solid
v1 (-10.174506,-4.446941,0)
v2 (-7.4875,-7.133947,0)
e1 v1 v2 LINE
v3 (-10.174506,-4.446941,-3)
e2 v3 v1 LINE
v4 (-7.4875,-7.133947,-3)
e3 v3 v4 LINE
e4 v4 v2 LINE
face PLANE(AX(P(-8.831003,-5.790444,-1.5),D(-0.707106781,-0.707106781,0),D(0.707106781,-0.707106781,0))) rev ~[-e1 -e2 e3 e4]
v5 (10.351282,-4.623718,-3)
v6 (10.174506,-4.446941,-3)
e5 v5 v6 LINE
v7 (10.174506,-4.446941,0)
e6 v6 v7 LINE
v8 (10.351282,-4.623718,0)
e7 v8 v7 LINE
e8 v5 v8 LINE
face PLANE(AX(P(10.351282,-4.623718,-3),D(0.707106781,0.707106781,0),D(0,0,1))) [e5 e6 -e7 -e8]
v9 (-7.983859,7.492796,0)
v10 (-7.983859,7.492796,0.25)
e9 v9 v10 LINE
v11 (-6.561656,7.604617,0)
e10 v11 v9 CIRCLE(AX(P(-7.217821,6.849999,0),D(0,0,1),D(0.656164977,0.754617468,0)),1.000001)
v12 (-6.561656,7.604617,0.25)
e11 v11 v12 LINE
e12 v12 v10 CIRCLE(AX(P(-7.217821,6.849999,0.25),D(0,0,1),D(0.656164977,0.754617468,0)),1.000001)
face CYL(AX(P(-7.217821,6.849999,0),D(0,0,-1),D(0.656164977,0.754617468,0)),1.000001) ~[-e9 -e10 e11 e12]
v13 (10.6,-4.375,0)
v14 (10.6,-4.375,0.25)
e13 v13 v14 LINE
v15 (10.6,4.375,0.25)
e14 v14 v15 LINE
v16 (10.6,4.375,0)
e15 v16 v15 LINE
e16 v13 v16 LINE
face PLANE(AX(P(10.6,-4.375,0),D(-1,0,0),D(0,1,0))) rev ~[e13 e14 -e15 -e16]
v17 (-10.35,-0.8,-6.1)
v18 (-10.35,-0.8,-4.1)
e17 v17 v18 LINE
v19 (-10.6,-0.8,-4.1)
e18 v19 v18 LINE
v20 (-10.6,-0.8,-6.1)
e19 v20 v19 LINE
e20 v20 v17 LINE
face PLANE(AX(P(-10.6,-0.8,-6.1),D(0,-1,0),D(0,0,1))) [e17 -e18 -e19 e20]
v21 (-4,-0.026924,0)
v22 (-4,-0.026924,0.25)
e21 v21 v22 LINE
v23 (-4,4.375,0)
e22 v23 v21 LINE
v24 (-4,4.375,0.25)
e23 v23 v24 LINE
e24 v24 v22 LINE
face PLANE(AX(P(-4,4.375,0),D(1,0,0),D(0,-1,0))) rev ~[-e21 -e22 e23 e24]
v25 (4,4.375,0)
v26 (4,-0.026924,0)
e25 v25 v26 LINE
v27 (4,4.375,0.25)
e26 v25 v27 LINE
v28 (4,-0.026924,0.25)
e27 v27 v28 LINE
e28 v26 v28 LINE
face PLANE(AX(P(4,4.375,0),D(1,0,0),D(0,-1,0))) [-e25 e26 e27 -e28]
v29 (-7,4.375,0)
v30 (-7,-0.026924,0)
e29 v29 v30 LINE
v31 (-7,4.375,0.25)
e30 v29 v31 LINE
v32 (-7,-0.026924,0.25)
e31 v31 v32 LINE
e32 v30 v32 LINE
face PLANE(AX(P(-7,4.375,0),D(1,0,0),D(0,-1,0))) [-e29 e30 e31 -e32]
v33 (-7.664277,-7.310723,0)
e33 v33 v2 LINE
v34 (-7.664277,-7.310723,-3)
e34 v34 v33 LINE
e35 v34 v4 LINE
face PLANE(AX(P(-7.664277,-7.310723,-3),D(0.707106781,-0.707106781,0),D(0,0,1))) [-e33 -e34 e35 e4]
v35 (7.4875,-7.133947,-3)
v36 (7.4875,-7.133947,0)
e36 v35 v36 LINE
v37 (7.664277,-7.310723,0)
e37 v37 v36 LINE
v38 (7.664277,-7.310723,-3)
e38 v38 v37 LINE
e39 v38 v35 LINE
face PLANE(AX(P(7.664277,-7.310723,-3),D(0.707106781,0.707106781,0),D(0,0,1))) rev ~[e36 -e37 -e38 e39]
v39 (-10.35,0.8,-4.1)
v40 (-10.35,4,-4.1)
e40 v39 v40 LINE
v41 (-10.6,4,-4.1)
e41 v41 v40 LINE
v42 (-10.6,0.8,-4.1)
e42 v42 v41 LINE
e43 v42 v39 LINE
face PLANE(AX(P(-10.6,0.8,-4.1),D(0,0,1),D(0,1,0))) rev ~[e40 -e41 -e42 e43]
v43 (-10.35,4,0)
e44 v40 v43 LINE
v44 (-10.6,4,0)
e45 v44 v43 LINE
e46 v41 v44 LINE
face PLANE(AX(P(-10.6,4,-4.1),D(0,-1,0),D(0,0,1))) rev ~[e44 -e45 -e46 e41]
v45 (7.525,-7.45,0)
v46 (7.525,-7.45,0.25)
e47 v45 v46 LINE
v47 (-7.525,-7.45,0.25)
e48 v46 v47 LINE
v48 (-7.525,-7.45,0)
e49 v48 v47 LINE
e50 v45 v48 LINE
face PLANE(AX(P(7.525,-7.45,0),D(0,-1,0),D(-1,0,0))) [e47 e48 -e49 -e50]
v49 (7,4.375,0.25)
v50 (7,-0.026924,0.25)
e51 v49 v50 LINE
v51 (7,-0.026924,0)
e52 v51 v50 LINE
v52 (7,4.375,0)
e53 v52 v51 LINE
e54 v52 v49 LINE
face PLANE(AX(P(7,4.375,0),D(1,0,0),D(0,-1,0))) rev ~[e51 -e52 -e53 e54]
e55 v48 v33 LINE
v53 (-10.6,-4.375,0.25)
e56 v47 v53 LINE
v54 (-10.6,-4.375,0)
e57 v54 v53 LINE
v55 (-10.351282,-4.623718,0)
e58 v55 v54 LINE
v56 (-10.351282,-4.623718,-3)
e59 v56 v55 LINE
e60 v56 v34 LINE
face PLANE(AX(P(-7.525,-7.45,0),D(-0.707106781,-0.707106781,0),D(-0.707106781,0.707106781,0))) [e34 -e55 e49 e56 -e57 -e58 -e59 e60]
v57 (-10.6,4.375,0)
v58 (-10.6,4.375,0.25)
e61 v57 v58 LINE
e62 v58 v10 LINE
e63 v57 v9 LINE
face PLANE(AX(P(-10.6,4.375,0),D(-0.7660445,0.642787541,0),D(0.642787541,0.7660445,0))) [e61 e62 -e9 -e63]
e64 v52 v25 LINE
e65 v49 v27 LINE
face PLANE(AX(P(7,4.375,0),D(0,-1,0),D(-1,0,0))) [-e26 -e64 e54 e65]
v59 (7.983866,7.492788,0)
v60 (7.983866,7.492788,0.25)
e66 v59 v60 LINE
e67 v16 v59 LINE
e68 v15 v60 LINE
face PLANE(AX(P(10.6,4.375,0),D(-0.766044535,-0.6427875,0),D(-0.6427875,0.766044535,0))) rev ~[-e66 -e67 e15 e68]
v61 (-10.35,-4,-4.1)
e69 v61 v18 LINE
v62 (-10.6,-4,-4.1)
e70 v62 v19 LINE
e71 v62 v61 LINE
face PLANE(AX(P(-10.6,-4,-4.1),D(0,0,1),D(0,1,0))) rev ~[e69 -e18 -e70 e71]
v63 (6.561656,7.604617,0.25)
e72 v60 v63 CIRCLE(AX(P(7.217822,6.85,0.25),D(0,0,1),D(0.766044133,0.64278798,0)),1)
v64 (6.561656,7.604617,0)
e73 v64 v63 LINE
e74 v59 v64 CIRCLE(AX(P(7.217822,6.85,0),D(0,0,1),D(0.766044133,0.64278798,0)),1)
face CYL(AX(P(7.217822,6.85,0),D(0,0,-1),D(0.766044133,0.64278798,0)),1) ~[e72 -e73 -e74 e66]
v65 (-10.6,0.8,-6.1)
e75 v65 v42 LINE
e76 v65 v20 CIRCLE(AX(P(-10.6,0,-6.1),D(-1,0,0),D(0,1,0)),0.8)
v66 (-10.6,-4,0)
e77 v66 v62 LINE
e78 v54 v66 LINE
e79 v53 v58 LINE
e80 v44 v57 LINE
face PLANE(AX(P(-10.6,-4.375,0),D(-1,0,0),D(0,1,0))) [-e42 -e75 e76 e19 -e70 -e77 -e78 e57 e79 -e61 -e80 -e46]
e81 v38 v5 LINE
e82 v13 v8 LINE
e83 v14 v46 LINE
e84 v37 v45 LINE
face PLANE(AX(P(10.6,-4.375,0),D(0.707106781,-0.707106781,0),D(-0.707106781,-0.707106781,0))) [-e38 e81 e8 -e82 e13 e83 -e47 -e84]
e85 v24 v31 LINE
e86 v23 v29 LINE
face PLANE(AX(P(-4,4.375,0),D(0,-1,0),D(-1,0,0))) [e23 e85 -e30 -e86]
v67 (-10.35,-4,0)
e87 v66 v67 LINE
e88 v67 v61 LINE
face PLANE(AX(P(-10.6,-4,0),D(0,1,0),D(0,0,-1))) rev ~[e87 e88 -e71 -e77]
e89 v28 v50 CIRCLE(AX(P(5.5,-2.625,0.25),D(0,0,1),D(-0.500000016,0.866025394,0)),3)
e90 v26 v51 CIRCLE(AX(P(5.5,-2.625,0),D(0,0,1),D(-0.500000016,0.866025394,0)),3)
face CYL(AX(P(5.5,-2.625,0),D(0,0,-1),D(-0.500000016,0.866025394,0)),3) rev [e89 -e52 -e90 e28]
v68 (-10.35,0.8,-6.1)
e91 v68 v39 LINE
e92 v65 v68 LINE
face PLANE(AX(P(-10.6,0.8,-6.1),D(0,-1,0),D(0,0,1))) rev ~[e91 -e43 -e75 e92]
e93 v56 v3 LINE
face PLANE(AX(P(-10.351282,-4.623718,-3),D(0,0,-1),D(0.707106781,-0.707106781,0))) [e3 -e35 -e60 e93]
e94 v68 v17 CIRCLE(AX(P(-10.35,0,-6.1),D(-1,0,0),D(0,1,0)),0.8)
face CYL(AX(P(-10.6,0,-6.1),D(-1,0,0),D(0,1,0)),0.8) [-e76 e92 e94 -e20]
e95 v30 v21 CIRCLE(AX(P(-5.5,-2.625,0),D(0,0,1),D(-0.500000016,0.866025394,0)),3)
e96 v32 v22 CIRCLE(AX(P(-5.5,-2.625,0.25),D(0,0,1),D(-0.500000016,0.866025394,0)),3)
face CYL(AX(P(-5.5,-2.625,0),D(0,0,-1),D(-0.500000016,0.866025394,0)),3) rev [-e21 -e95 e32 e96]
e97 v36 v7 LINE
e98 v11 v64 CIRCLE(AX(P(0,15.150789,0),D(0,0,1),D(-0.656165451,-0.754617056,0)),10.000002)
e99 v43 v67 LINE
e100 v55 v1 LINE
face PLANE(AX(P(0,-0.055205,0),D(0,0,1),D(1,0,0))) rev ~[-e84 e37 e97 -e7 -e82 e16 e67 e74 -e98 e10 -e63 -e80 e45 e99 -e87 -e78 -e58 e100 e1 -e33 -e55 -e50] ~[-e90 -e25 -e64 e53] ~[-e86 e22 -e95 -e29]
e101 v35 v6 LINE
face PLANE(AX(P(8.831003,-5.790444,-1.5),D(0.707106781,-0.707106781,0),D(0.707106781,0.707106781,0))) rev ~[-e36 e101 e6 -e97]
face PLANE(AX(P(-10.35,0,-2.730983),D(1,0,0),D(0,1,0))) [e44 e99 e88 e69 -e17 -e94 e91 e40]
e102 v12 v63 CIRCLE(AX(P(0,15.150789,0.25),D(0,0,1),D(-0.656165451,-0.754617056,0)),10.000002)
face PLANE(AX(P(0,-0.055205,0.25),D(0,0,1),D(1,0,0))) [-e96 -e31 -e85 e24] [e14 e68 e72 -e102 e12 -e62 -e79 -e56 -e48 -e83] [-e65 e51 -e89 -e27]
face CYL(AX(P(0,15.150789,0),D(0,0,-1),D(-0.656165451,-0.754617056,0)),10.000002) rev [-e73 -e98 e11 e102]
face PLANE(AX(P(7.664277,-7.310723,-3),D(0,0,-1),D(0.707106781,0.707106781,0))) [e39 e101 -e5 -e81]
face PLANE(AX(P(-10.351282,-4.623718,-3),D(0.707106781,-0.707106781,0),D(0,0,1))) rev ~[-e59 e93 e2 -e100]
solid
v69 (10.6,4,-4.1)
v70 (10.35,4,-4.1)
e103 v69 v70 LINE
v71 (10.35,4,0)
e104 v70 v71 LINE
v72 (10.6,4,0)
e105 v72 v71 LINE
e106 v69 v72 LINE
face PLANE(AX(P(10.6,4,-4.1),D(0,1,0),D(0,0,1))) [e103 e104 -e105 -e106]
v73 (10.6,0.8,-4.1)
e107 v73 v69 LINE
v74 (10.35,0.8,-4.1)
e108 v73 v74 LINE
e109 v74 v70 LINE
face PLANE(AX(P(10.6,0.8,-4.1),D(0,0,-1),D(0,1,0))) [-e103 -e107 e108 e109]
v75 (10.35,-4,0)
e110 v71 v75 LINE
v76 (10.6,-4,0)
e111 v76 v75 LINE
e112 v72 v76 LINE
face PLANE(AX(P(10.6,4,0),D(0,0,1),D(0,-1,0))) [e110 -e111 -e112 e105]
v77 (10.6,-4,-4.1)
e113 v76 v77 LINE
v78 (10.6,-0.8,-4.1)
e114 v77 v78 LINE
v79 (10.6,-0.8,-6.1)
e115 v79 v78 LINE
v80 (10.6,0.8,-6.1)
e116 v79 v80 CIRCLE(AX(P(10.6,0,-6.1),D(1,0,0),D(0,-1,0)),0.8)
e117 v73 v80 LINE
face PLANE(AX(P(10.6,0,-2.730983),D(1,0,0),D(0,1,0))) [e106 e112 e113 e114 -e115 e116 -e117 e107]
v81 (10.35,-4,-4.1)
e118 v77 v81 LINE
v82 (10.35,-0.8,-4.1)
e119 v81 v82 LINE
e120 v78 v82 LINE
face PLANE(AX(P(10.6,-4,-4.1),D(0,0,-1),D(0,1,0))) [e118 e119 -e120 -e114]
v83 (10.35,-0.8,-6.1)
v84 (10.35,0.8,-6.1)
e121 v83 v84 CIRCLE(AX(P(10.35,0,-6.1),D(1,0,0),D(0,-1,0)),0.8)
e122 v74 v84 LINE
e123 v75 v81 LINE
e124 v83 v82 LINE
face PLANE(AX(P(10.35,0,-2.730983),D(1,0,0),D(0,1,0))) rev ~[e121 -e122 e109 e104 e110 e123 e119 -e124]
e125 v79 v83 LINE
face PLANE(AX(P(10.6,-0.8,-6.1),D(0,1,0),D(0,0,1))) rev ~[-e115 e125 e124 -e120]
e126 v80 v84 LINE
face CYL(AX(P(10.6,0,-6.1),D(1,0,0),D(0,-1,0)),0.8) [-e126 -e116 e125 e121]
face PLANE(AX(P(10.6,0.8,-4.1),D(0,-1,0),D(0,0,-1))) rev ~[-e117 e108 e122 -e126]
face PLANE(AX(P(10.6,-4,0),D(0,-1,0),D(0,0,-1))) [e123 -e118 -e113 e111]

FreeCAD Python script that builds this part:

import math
import FreeCAD as App
import Part
import Sketcher
from FreeCAD import Vector
Q = App.Units.Quantity


def add_polygon(sketch, points):
    """Adds a closed chain of lines whose ends are joined by coincident constraints."""
    first, n = sketch.GeometryCount, len(points)
    for a, b in zip(points, points[1:] + points[:1]):
        sketch.addGeometry(Part.LineSegment(App.Vector(*a, 0), App.Vector(*b, 0)), False)
    for i in range(n):
        sketch.addConstraint(Sketcher.Constraint("Coincident", first + i, 2, first + (i + 1) % n, 1))

doc = App.newDocument("Part")
body = doc.addObject("PartDesign::Body", "Body")

sketch1 = doc.addObject("Sketcher::SketchObject", "Sketch")
body.addObject(sketch1)
sketch1.AttachmentSupport = (doc.XY_Plane, [""])
sketch1.MapMode = "FlatFace"
sketch1.addGeometry([
    Part.LineSegment(Vector(10.6, -4.375, 0), Vector(10.6, 4.375, 0)),
    Part.LineSegment(Vector(10.6, 4.375, 0), Vector(7.983866, 7.492788, 0)),
    Part.ArcOfCircle(Part.Circle(Vector(7.217822, 6.85, 0), Vector(0, 0, 1), 1), math.radians(40.000028), math.radians(131.008089)),
    Part.ArcOfCircle(Part.Circle(Vector(0, 15.150789, 0), Vector(0, 0, 1), 10.000002), math.radians(-131.00808), math.radians(-48.99192)),
    Part.ArcOfCircle(Part.Circle(Vector(-7.217821, 6.849999, 0), Vector(0, 0, 1), 1.000001), math.radians(48.991956), math.radians(139.999331)),
    Part.LineSegment(Vector(-7.983859, 7.492796, 0), Vector(-10.6, 4.375, 0)),
    Part.LineSegment(Vector(-10.6, 4.375, 0), Vector(-10.6, -4.375, 0)),
    Part.LineSegment(Vector(-10.6, -4.375, 0), Vector(-7.525, -7.45, 0)),
    Part.LineSegment(Vector(-7.525, -7.45, 0), Vector(7.525, -7.45, 0)),
    Part.LineSegment(Vector(7.525, -7.45, 0), Vector(10.6, -4.375, 0)),
    Part.LineSegment(Vector(-7, -0.026924, 0), Vector(-7, 4.375, 0)),
    Part.LineSegment(Vector(-7, 4.375, 0), Vector(-4, 4.375, 0)),
    Part.LineSegment(Vector(-4, 4.375, 0), Vector(-4, -0.026924, 0)),
    Part.ArcOfCircle(Part.Circle(Vector(-5.5, -2.625, 0), Vector(0, 0, 1), 3), math.radians(120.000001), math.radians(419.999999)),
    Part.LineSegment(Vector(4, -0.026924, 0), Vector(4, 4.375, 0)),
    Part.LineSegment(Vector(4, 4.375, 0), Vector(7, 4.375, 0)),
    Part.LineSegment(Vector(7, 4.375, 0), Vector(7, -0.026924, 0)),
    Part.ArcOfCircle(Part.Circle(Vector(5.5, -2.625, 0), Vector(0, 0, 1), 3), math.radians(120.000001), math.radians(419.999999)),
], False)
sketch1.addConstraint([
    Sketcher.Constraint("Coincident", 0, 2, 1, 1),
    Sketcher.Constraint("Tangent", 1, 2, 2, 1),
    Sketcher.Constraint("Tangent", 2, 2, 3, 2),
    Sketcher.Constraint("Tangent", 3, 1, 4, 1),
    Sketcher.Constraint("Coincident", 4, 2, 5, 1),
    Sketcher.Constraint("Coincident", 5, 2, 6, 1),
    Sketcher.Constraint("Coincident", 6, 2, 7, 1),
    Sketcher.Constraint("Coincident", 7, 2, 8, 1),
    Sketcher.Constraint("Coincident", 8, 2, 9, 1),
    Sketcher.Constraint("Coincident", 9, 2, 0, 1),
    Sketcher.Constraint("Coincident", 10, 2, 11, 1),
    Sketcher.Constraint("Coincident", 11, 2, 12, 1),
    Sketcher.Constraint("Coincident", 12, 2, 13, 2),
    Sketcher.Constraint("Coincident", 13, 1, 10, 1),
    Sketcher.Constraint("Coincident", 14, 2, 15, 1),
    Sketcher.Constraint("Coincident", 15, 2, 16, 1),
    Sketcher.Constraint("Coincident", 16, 2, 17, 2),
    Sketcher.Constraint("Coincident", 17, 1, 14, 1),
    Sketcher.Constraint("Vertical", 0),
    Sketcher.Constraint("Vertical", 6),
    Sketcher.Constraint("Horizontal", 8),
    Sketcher.Constraint("Vertical", 10),
    Sketcher.Constraint("Horizontal", 11),
    Sketcher.Constraint("Vertical", 12),
    Sketcher.Constraint("Vertical", 14),
    Sketcher.Constraint("Horizontal", 15),
    Sketcher.Constraint("Vertical", 16),
    Sketcher.Constraint("Equal", 2, 4),
    Sketcher.Constraint("Equal", 13, 17),
    Sketcher.Constraint("Symmetric", 0, 2, 6, 2, -1, 1),
    Sketcher.Constraint("Symmetric", 2, 3, 4, 3, -2),
    Sketcher.Constraint("Symmetric", 13, 3, 17, 3, -2),
    Sketcher.Constraint("Symmetric", 11, 2, 14, 2, -2),
    Sketcher.Constraint("Perpendicular", 7, 9),
    Sketcher.Constraint("Horizontal", 0, 2, 5, 2),
    Sketcher.Constraint("Horizontal", 6, 2, 9, 2),
    Sketcher.Constraint("Horizontal", 5, 2, 10, 2),
    Sketcher.Constraint("Horizontal", 12, 2, 13, 1),
    Sketcher.Constraint("Horizontal", 13, 1, 16, 2),
    Sketcher.Constraint("Equal", 7, 9),
    Sketcher.Constraint("Radius", 2, 1.0),
    Sketcher.Constraint("Radius", 13, 3.0),
    Sketcher.Constraint("DistanceX", 11, 1, 11, 2, 3.0),
    Sketcher.Constraint("Angle", 1, Q("129.999992 deg")),
    Sketcher.Constraint("DistanceX", 10, 2, -1, 1, 7.0),
    Sketcher.Constraint("DistanceY", 17, 3, 0, 2, 7.0),
    Sketcher.Constraint("DistanceX", 8, 1, 8, 2, 15.05),
    Sketcher.Constraint("DistanceY", 0, 1, 0, 2, 8.75),
    Sketcher.Constraint("DistanceX", -1, 1, 0, 2, 10.6),
    Sketcher.Constraint("DistanceY", 7, 2, 4, 3, 14.299999),
    Sketcher.Constraint("Radius", 3, 10.000002),
    Sketcher.Constraint("DistanceX", 4, 2, -1, 1, 7.983859),
])
pad1 = doc.addObject("PartDesign::Pad", "Pad")
body.addObject(pad1)
pad1.Profile = sketch1
pad1.Length = 0.25

sketch2 = doc.addObject("Sketcher::SketchObject", "Sketch001")
body.addObject(sketch2)
sketch2.Placement = App.Placement(Vector(7.4875, -7.4875, 0), App.Rotation(Vector(0.707106781, 0.707106781, 0), Vector(0, 0, 0.999999999), Vector(0.707106781, -0.707106781, 0), "ZXY"))
add_polygon(sketch2, [(0.25, 0), (0.25, -3), (4.05, -3), (4.05, 0)])
sketch2.addConstraint([
    Sketcher.Constraint("Vertical", 0),
    Sketcher.Constraint("Horizontal", 1),
    Sketcher.Constraint("Vertical", 2),
    Sketcher.Constraint("Horizontal", 3),
    Sketcher.Constraint("PointOnObject", 2, 2, -1),
    Sketcher.Constraint("DistanceY", 0, 2, 0, 1, 3.0),
    Sketcher.Constraint("DistanceX", 1, 1, 1, 2, 3.8),
    Sketcher.Constraint("DistanceX", -1, 1, 0, 2, 0.25),
])
pad2 = doc.addObject("PartDesign::Pad", "Pad001")
body.addObject(pad2)
pad2.Profile = sketch2
pad2.Length = 0.25
pad2.Reversed = True

sketch3 = doc.addObject("Sketcher::SketchObject", "Sketch002")
body.addObject(sketch3)
sketch3.Placement = App.Placement(Vector(-7.4875, -7.4875, 0), App.Rotation(Vector(0.707106781, -0.707106781, 0), Vector(0, 0, 0.999999999), Vector(-0.707106781, -0.707106781, 0), "ZXY"))
add_polygon(sketch3, [(-4.05, 0), (-4.05, -3), (-0.25, -3), (-0.25, 0)])
sketch3.addConstraint([
    Sketcher.Constraint("Vertical", 0),
    Sketcher.Constraint("Horizontal", 1),
    Sketcher.Constraint("Vertical", 2),
    Sketcher.Constraint("Horizontal", 3),
    Sketcher.Constraint("PointOnObject", 2, 2, -1),
    Sketcher.Constraint("DistanceY", 0, 2, 0, 1, 3.0),
    Sketcher.Constraint("DistanceX", 1, 1, 1, 2, 3.8),
    Sketcher.Constraint("DistanceX", 0, 2, -1, 1, 4.05),
])
pad3 = doc.addObject("PartDesign::Pad", "Pad002")
body.addObject(pad3)
pad3.Profile = sketch3
pad3.Length = 0.25
pad3.Reversed = True

sketch4 = doc.addObject("Sketcher::SketchObject", "Sketch003")
body.addObject(sketch4)
sketch4.AttachmentSupport = (doc.YZ_Plane, [""])
sketch4.MapMode = "FlatFace"
sketch4.AttachmentOffset = App.Placement(Vector(0, 0, -10.6), App.Rotation())
sketch4.addGeometry([
    Part.LineSegment(Vector(-4, 0, 0), Vector(4, 0, 0)),
    Part.LineSegment(Vector(4, 0, 0), Vector(4, -4.1, 0)),
    Part.LineSegment(Vector(4, -4.1, 0), Vector(0.8, -4.1, 0)),
    Part.LineSegment(Vector(0.8, -4.1, 0), Vector(0.8, -6.1, 0)),
    Part.ArcOfCircle(Part.Circle(Vector(0, -6.1, 0), Vector(0, 0, 1), 0.8), math.radians(180), math.radians(360)),
    Part.LineSegment(Vector(-0.8, -6.1, 0), Vector(-0.8, -4.1, 0)),
    Part.LineSegment(Vector(-0.8, -4.1, 0), Vector(-4, -4.1, 0)),
    Part.LineSegment(Vector(-4, -4.1, 0), Vector(-4, 0, 0)),
], False)
sketch4.addConstraint([
    Sketcher.Constraint("Coincident", 0, 2, 1, 1),
    Sketcher.Constraint("Coincident", 1, 2, 2, 1),
    Sketcher.Constraint("Coincident", 2, 2, 3, 1),
    Sketcher.Constraint("Tangent", 3, 2, 4, 2),
    Sketcher.Constraint("Tangent", 4, 1, 5, 1),
    Sketcher.Constraint("Coincident", 5, 2, 6, 1),
    Sketcher.Constraint("Coincident", 6, 2, 7, 1),
    Sketcher.Constraint("Coincident", 7, 2, 0, 1),
    Sketcher.Constraint("Horizontal", 0),
    Sketcher.Constraint("Vertical", 1),
    Sketcher.Constraint("Horizontal", 2),
    Sketcher.Constraint("Vertical", 3),
    Sketcher.Constraint("Vertical", 5),
    Sketcher.Constraint("Horizontal", 6),
    Sketcher.Constraint("Vertical", 7),
    Sketcher.Constraint("Symmetric", 0, 2, 7, 2, -1, 1),
    Sketcher.Constraint("Symmetric", 2, 2, 5, 2, -2),
    Sketcher.Constraint("Radius", 4, 0.8),
    Sketcher.Constraint("DistanceX", 0, 1, 0, 2, 8.0),
    Sketcher.Constraint("DistanceY", 3, 2, 3, 1, 2.0),
    Sketcher.Constraint("DistanceY", 1, 2, 1, 1, 4.1),
])
pad4 = doc.addObject("PartDesign::Pad", "Pad003")
body.addObject(pad4)
pad4.Profile = sketch4
pad4.Length = 0.25
body2 = doc.addObject("PartDesign::Body", "Body001")

sketch5 = doc.addObject("Sketcher::SketchObject", "Sketch004")
body2.addObject(sketch5)
sketch5.AttachmentSupport = (doc.getObject("YZ_Plane001"), [""])
sketch5.MapMode = "FlatFace"
sketch5.AttachmentOffset = App.Placement(Vector(0, 0, 10.6), App.Rotation())
sketch5.addGeometry([
    Part.LineSegment(Vector(4, 0, 0), Vector(-4, 0, 0)),
    Part.LineSegment(Vector(-4, 0, 0), Vector(-4, -4.1, 0)),
    Part.LineSegment(Vector(-4, -4.1, 0), Vector(-0.8, -4.1, 0)),
    Part.LineSegment(Vector(-0.8, -4.1, 0), Vector(-0.8, -6.1, 0)),
    Part.ArcOfCircle(Part.Circle(Vector(0, -6.1, 0), Vector(0, 0, 1), 0.8), math.radians(180), math.radians(360)),
    Part.LineSegment(Vector(0.8, -6.1, 0), Vector(0.8, -4.1, 0)),
    Part.LineSegment(Vector(0.8, -4.1, 0), Vector(4, -4.1, 0)),
    Part.LineSegment(Vector(4, -4.1, 0), Vector(4, 0, 0)),
], False)
sketch5.addConstraint([
    Sketcher.Constraint("Coincident", 0, 2, 1, 1),
    Sketcher.Constraint("Coincident", 1, 2, 2, 1),
    Sketcher.Constraint("Coincident", 2, 2, 3, 1),
    Sketcher.Constraint("Tangent", 3, 2, 4, 1),
    Sketcher.Constraint("Tangent", 4, 2, 5, 1),
    Sketcher.Constraint("Coincident", 5, 2, 6, 1),
    Sketcher.Constraint("Coincident", 6, 2, 7, 1),
    Sketcher.Constraint("Coincident", 7, 2, 0, 1),
    Sketcher.Constraint("Horizontal", 0),
    Sketcher.Constraint("Vertical", 1),
    Sketcher.Constraint("Horizontal", 2),
    Sketcher.Constraint("Vertical", 3),
    Sketcher.Constraint("Vertical", 5),
    Sketcher.Constraint("Horizontal", 6),
    Sketcher.Constraint("Vertical", 7),
    Sketcher.Constraint("Symmetric", 0, 2, 7, 2, -1, 1),
    Sketcher.Constraint("Symmetric", 2, 2, 5, 2, -2),
    Sketcher.Constraint("Radius", 4, 0.8),
    Sketcher.Constraint("DistanceX", 0, 2, 0, 1, 8.0),
    Sketcher.Constraint("DistanceY", 3, 2, 3, 1, 2.0),
    Sketcher.Constraint("DistanceY", 1, 2, 1, 1, 4.1),
])
pad5 = doc.addObject("PartDesign::Pad", "Pad004")
body2.addObject(pad5)
pad5.Profile = sketch5
pad5.Length = 0.25
pad5.Reversed = True

doc.recompute()
